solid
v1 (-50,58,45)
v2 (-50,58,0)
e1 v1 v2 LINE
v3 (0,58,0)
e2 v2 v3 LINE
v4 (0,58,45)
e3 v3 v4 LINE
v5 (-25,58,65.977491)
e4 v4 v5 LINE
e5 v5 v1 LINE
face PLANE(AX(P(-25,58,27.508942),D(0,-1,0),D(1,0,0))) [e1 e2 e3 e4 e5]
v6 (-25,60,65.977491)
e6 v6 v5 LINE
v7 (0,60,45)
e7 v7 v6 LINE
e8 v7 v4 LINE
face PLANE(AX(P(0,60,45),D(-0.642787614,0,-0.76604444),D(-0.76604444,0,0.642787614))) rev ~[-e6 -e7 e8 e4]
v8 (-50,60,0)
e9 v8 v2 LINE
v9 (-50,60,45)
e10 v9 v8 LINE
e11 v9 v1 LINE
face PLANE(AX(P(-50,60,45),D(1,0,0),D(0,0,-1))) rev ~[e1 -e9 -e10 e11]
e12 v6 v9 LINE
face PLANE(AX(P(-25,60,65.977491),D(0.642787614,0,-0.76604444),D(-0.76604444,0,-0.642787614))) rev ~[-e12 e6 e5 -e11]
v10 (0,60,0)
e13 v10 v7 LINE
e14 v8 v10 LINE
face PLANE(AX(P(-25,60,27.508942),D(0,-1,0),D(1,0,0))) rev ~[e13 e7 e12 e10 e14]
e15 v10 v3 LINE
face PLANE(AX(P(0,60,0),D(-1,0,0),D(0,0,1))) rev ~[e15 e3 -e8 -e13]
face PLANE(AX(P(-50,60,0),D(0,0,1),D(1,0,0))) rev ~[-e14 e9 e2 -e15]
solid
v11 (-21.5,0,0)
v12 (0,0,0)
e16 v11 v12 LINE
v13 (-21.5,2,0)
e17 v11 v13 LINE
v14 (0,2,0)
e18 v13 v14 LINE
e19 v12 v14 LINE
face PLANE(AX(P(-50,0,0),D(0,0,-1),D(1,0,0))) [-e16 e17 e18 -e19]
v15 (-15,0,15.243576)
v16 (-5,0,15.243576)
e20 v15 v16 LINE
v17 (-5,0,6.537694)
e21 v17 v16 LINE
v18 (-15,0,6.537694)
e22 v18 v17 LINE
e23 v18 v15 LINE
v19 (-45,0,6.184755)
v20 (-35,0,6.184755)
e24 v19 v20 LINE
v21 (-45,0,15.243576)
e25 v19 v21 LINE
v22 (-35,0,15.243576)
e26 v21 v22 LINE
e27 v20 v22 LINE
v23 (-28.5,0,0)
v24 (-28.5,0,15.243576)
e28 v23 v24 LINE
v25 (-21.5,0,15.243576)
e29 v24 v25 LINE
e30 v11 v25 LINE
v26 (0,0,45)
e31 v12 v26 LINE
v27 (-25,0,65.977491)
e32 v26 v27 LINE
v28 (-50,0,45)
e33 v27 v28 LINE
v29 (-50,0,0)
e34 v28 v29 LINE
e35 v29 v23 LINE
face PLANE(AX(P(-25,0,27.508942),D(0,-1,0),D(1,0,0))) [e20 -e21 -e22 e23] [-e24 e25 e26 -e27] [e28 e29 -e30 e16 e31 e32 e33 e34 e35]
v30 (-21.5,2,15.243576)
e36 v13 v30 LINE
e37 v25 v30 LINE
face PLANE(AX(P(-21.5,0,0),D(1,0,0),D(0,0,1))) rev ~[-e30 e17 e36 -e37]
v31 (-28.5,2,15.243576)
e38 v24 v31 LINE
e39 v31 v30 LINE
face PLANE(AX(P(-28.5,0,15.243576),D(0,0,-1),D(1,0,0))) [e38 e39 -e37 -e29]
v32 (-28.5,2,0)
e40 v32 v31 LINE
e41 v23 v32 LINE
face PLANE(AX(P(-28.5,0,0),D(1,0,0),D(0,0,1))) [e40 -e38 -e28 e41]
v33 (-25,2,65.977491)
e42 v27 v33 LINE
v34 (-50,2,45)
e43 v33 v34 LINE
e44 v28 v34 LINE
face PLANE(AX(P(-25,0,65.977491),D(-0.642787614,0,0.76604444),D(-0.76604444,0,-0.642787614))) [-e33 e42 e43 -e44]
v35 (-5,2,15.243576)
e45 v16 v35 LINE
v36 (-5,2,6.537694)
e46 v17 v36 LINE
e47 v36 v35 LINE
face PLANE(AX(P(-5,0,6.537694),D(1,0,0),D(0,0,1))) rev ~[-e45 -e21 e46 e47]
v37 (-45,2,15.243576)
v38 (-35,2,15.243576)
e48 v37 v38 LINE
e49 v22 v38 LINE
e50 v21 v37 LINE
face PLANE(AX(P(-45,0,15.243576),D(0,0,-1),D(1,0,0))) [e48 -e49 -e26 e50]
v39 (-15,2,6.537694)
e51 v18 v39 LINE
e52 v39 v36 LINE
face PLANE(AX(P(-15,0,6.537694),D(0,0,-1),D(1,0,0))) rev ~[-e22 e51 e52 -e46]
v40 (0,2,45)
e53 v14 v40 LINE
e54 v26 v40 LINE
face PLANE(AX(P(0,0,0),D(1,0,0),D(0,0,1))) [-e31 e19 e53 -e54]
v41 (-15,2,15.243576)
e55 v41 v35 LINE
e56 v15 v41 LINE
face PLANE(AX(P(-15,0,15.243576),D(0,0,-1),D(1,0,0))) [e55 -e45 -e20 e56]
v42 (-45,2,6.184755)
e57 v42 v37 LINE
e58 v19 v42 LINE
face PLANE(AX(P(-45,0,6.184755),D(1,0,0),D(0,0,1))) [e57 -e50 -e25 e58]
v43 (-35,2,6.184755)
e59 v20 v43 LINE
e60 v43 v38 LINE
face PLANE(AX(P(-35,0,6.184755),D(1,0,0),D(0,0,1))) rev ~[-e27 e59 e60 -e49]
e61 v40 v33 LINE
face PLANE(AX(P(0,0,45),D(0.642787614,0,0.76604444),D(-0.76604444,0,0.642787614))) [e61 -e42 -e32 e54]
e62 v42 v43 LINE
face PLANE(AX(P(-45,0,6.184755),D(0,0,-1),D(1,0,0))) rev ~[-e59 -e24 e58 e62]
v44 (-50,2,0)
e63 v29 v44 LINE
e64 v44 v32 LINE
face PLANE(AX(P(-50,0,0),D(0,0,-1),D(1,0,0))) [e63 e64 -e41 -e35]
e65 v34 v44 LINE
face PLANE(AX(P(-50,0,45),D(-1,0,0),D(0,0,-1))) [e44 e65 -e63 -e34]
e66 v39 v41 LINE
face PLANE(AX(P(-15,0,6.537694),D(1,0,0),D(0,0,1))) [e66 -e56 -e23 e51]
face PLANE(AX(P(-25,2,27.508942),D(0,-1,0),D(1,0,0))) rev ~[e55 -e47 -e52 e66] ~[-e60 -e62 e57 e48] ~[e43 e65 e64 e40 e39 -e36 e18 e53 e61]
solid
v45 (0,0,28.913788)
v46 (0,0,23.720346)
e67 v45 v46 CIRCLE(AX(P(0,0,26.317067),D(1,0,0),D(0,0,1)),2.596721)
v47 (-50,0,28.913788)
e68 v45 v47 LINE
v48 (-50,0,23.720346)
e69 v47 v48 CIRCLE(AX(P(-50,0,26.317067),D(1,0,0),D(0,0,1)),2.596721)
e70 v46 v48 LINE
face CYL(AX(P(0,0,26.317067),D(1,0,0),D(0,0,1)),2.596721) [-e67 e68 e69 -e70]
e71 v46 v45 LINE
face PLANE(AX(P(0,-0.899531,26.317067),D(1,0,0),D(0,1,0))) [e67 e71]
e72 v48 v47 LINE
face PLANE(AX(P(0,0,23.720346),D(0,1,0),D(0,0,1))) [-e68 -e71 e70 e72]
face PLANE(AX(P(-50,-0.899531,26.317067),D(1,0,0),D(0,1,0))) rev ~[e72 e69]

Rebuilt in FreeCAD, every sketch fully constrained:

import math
import FreeCAD as App
import Part
import Sketcher

V = App.Vector
Q = App.Units.Quantity


def add_polygon(sketch, points):
    """Adds a closed chain of lines whose ends are joined by coincident constraints."""
    first, n = sketch.GeometryCount, len(points)
    for a, b in zip(points, points[1:] + points[:1]):
        sketch.addGeometry(Part.LineSegment(App.Vector(*a, 0), App.Vector(*b, 0)), False)
    for i in range(n):
        sketch.addConstraint(Sketcher.Constraint("Coincident", first + i, 2, first + (i + 1) % n, 1))

doc = App.newDocument("Part")
body = doc.addObject("PartDesign::Body", "Body")

sketch1 = body.newObject("Sketcher::SketchObject", "Sketch")
sketch1.AttachmentSupport = (doc.getObject("XZ_Plane"), [""])
sketch1.MapMode = "FlatFace"
add_polygon(sketch1, [(-50, 0), (0, 0), (0, 45), (-25, 66), (-50, 45)])
sketch1.addConstraint(Sketcher.Constraint("Horizontal", 0))
sketch1.addConstraint(Sketcher.Constraint("Vertical", 1))
sketch1.addConstraint(Sketcher.Constraint("Vertical", 4))
sketch1.addConstraint(Sketcher.Constraint("Coincident", 0, 2, -1, 1))
sketch1.addConstraint(Sketcher.Constraint("Horizontal", 1, 2, 3, 2))
sketch1.addConstraint(Sketcher.Constraint("Equal", 2, 3))
sketch1.addConstraint(Sketcher.Constraint("DistanceX", 0, 1, 0, 2, Q("50 mm")))
sketch1.addConstraint(Sketcher.Constraint("DistanceY", 1, 1, 1, 2, Q("45 mm")))
sketch1.addConstraint(Sketcher.Constraint("Angle", 2, Q("140 deg")))
pad1 = body.newObject("PartDesign::Pad", "Pad")
pad1.Profile = sketch1
pad1.Length = 2
pad1.Reversed = True

sketch2 = body.newObject("Sketcher::SketchObject", "Sketch001")
sketch2.AttachmentSupport = (doc.getObject("XZ_Plane"), [""])
sketch2.MapMode = "FlatFace"
add_polygon(sketch2, [(-45, 15), (-45, 6), (-35, 6), (-35, 15)])
add_polygon(sketch2, [(-28, 15), (-28, 0), (-22, 0), (-22, 15)])
add_polygon(sketch2, [(-15, 15), (-15, 7), (-5, 7), (-5, 15)])
sketch2.addConstraint(Sketcher.Constraint("Vertical", 0))
sketch2.addConstraint(Sketcher.Constraint("Horizontal", 1))
sketch2.addConstraint(Sketcher.Constraint("Vertical", 2))
sketch2.addConstraint(Sketcher.Constraint("Horizontal", 3))
sketch2.addConstraint(Sketcher.Constraint("Vertical", 4))
sketch2.addConstraint(Sketcher.Constraint("Horizontal", 5))
sketch2.addConstraint(Sketcher.Constraint("Vertical", 6))
sketch2.addConstraint(Sketcher.Constraint("Horizontal", 7))
sketch2.addConstraint(Sketcher.Constraint("Vertical", 8))
sketch2.addConstraint(Sketcher.Constraint("Horizontal", 9))
sketch2.addConstraint(Sketcher.Constraint("Vertical", 10))
sketch2.addConstraint(Sketcher.Constraint("Horizontal", 11))
sketch2.addConstraint(Sketcher.Constraint("PointOnObject", 4, 2, -1))
sketch2.addConstraint(Sketcher.Constraint("Horizontal", 3, 2, 6, 2))
sketch2.addConstraint(Sketcher.Constraint("Horizontal", 7, 2, 10, 2))
sketch2.addConstraint(Sketcher.Constraint("Equal", 3, 9))
sketch2.addConstraint(Sketcher.Constraint("DistanceX", 1, 1, 1, 2, Q("10 mm")))
sketch2.addConstraint(Sketcher.Constraint("DistanceX", 5, 1, 5, 2, Q("7 mm")))
sketch2.addConstraint(Sketcher.Constraint("DistanceX", 0, 2, -1, 1, Q("45 mm")))
sketch2.addConstraint(Sketcher.Constraint("DistanceX", 8, 2, -1, 1, Q("15 mm")))
sketch2.addConstraint(Sketcher.Constraint("DistanceX", 4, 2, -1, 1, Q("28.5 mm")))
sketch2.addConstraint(Sketcher.Constraint("DistanceY", 0, 2, 0, 1, Q("9.058821 mm")))
sketch2.addConstraint(Sketcher.Constraint("DistanceY", 8, 2, 8, 1, Q("8.705881 mm")))
sketch2.addConstraint(Sketcher.Constraint("DistanceY", 4, 2, 4, 1, Q("15.243576 mm")))
pocket1 = body.newObject("PartDesign::Pocket", "Pocket")
pocket1.Profile = sketch2
pocket1.Length = 25
body2 = doc.addObject("PartDesign::Body", "Body001")

sketch3 = body2.newObject("Sketcher::SketchObject", "Sketch002")
sketch3.AttachmentSupport = (doc.getObject("XZ_Plane001"), [""])
sketch3.MapMode = "FlatFace"
sketch3.AttachmentOffset = App.Placement(V(0, 0, -60), App.Rotation())
add_polygon(sketch3, [(-50, 0), (0, 0), (0, 45), (-25, 66), (-50, 45)])
sketch3.addConstraint(Sketcher.Constraint("Horizontal", 0))
sketch3.addConstraint(Sketcher.Constraint("Vertical", 1))
sketch3.addConstraint(Sketcher.Constraint("Vertical", 4))
sketch3.addConstraint(Sketcher.Constraint("Coincident", 0, 2, -1, 1))
sketch3.addConstraint(Sketcher.Constraint("Horizontal", 1, 2, 3, 2))
sketch3.addConstraint(Sketcher.Constraint("Equal", 2, 3))
sketch3.addConstraint(Sketcher.Constraint("DistanceX", 0, 1, 0, 2, Q("50 mm")))
sketch3.addConstraint(Sketcher.Constraint("DistanceY", 1, 1, 1, 2, Q("45 mm")))
sketch3.addConstraint(Sketcher.Constraint("Angle", 2, Q("140 deg")))
pad2 = body2.newObject("PartDesign::Pad", "Pad001")
pad2.Profile = sketch3
pad2.Length = 2
body3 = doc.addObject("PartDesign::Body", "Body002")

sketch4 = body3.newObject("Sketcher::SketchObject", "Sketch003")
sketch4.AttachmentSupport = (doc.getObject("YZ_Plane002"), [""])
sketch4.MapMode = "FlatFace"
sketch4.addGeometry(Part.LineSegment(V(0, 23.7, 0), V(0, 28.9, 0)), False)
sketch4.addGeometry(Part.ArcOfCircle(Part.Circle(V(0, 26.3, 0), V(0, 0, 1), 2.6), math.radians(90), math.radians(270)), False)
sketch4.addConstraint(Sketcher.Constraint("Coincident", 0, 1, 1, 2))
sketch4.addConstraint(Sketcher.Constraint("Coincident", 1, 1, 0, 2))
sketch4.addConstraint(Sketcher.Constraint("Vertical", 0))
sketch4.addConstraint(Sketcher.Constraint("PointOnObject", 1, 3, -2))
sketch4.addConstraint(Sketcher.Constraint("PointOnObject", 0, 1, -2))
sketch4.addConstraint(Sketcher.Constraint("Radius", 1, Q("2.596721 mm")))
sketch4.addConstraint(Sketcher.Constraint("DistanceY", -1, 1, 1, 1, Q("28.913788 mm")))
pad3 = body3.newObject("PartDesign::Pad", "Pad002")
pad3.Profile = sketch4
pad3.Length = 50
pad3.Reversed = True

doc.recompute()
